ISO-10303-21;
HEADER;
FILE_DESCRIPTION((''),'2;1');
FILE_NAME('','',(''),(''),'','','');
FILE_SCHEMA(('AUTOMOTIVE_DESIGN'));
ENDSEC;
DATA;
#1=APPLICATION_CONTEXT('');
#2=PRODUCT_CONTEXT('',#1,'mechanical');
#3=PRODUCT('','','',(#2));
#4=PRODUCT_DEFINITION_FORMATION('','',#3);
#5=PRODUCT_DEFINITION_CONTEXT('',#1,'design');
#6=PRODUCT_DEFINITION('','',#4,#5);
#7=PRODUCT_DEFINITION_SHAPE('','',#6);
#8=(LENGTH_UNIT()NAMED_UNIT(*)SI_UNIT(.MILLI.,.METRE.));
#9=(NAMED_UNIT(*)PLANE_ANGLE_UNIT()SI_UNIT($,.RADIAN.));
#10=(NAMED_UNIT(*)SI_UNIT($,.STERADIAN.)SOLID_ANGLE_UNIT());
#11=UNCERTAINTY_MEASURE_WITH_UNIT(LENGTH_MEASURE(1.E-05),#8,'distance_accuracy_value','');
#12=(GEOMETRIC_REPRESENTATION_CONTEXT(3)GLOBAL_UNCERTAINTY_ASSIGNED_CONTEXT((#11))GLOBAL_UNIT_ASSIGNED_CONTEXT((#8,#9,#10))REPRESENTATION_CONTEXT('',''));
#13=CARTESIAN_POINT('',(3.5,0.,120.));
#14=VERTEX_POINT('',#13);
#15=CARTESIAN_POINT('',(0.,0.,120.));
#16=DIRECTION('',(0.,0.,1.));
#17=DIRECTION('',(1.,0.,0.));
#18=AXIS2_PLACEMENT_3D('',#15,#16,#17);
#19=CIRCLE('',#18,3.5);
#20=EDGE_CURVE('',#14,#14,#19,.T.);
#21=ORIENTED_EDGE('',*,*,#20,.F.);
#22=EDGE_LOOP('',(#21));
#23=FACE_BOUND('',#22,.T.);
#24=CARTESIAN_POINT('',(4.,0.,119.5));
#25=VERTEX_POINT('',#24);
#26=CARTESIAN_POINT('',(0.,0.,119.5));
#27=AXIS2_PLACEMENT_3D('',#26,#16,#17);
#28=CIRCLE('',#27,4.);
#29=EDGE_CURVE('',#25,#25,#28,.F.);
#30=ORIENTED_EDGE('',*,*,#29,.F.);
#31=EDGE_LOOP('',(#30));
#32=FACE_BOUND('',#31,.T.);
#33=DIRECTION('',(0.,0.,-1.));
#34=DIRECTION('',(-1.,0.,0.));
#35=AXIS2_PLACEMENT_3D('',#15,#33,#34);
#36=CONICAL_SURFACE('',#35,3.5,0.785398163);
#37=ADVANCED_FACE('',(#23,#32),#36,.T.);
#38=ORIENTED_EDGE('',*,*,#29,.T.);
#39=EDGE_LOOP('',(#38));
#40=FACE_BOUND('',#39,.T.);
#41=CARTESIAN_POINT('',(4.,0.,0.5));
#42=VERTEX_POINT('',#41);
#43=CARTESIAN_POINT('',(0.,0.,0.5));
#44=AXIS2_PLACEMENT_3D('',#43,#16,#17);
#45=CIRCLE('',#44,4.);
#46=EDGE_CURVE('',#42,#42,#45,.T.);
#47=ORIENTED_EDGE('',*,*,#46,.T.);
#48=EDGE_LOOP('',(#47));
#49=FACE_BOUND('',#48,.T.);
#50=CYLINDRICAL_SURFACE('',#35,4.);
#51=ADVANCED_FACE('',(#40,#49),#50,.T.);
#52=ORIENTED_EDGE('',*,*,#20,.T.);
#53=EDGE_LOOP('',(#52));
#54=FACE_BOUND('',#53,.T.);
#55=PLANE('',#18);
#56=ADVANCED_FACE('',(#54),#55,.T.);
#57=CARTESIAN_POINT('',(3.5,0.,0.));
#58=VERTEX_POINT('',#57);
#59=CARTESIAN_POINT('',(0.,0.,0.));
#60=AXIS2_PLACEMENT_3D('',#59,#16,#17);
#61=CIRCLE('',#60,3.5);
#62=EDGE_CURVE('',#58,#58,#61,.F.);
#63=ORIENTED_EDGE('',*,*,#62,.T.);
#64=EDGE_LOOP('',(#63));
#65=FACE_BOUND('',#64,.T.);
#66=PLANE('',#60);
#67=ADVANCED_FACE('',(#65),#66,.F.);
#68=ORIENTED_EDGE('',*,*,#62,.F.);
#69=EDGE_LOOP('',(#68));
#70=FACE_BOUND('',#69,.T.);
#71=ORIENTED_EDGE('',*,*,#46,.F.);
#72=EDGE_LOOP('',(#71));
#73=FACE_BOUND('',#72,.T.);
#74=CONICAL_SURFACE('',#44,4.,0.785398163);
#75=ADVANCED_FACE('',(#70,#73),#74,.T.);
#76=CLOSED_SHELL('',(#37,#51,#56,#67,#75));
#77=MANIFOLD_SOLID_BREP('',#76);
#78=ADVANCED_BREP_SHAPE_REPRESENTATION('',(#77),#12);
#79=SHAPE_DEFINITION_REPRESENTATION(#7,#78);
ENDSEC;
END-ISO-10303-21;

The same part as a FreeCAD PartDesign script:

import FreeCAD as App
import Part
import Sketcher

V = App.Vector
Q = App.Units.Quantity


def edges_at(feature, points):
    """Names of the edges that pass closest to the given points."""
    edges = feature.Shape.Edges
    near = lambda p: min(range(len(edges)), key=lambda i: edges[i].distToShape(Part.Vertex(*p))[0])
    return sorted({f"Edge{near(p) + 1}" for p in points})

doc = App.newDocument("Part")
body = doc.addObject("PartDesign::Body", "Body")

# Sketch on XY plane
sketch1 = body.newObject("Sketcher::SketchObject", "Sketch")
sketch1.AttachmentSupport = (doc.getObject("XY_Plane"), [""])
sketch1.MapMode = "FlatFace"
sketch1.addGeometry(Part.Circle(V(0, 0, 0), V(0, 0, 1), 4), False)
sketch1.addConstraint(Sketcher.Constraint("Coincident", 0, 3, -1, 1))
sketch1.addConstraint(Sketcher.Constraint("Diameter", 0, Q("8 mm")))
pad1 = body.newObject("PartDesign::Pad", "Pad")
pad1.Profile = sketch1
pad1.Length = 120
doc.recompute()

chamfer = body.newObject("PartDesign::Chamfer", "Chamfer")
chamfer.Base = (pad1, edges_at(pad1, [(-4, 0, 0), (-4, 0, 120)]))
chamfer.Size = 0.5

doc.recompute()
